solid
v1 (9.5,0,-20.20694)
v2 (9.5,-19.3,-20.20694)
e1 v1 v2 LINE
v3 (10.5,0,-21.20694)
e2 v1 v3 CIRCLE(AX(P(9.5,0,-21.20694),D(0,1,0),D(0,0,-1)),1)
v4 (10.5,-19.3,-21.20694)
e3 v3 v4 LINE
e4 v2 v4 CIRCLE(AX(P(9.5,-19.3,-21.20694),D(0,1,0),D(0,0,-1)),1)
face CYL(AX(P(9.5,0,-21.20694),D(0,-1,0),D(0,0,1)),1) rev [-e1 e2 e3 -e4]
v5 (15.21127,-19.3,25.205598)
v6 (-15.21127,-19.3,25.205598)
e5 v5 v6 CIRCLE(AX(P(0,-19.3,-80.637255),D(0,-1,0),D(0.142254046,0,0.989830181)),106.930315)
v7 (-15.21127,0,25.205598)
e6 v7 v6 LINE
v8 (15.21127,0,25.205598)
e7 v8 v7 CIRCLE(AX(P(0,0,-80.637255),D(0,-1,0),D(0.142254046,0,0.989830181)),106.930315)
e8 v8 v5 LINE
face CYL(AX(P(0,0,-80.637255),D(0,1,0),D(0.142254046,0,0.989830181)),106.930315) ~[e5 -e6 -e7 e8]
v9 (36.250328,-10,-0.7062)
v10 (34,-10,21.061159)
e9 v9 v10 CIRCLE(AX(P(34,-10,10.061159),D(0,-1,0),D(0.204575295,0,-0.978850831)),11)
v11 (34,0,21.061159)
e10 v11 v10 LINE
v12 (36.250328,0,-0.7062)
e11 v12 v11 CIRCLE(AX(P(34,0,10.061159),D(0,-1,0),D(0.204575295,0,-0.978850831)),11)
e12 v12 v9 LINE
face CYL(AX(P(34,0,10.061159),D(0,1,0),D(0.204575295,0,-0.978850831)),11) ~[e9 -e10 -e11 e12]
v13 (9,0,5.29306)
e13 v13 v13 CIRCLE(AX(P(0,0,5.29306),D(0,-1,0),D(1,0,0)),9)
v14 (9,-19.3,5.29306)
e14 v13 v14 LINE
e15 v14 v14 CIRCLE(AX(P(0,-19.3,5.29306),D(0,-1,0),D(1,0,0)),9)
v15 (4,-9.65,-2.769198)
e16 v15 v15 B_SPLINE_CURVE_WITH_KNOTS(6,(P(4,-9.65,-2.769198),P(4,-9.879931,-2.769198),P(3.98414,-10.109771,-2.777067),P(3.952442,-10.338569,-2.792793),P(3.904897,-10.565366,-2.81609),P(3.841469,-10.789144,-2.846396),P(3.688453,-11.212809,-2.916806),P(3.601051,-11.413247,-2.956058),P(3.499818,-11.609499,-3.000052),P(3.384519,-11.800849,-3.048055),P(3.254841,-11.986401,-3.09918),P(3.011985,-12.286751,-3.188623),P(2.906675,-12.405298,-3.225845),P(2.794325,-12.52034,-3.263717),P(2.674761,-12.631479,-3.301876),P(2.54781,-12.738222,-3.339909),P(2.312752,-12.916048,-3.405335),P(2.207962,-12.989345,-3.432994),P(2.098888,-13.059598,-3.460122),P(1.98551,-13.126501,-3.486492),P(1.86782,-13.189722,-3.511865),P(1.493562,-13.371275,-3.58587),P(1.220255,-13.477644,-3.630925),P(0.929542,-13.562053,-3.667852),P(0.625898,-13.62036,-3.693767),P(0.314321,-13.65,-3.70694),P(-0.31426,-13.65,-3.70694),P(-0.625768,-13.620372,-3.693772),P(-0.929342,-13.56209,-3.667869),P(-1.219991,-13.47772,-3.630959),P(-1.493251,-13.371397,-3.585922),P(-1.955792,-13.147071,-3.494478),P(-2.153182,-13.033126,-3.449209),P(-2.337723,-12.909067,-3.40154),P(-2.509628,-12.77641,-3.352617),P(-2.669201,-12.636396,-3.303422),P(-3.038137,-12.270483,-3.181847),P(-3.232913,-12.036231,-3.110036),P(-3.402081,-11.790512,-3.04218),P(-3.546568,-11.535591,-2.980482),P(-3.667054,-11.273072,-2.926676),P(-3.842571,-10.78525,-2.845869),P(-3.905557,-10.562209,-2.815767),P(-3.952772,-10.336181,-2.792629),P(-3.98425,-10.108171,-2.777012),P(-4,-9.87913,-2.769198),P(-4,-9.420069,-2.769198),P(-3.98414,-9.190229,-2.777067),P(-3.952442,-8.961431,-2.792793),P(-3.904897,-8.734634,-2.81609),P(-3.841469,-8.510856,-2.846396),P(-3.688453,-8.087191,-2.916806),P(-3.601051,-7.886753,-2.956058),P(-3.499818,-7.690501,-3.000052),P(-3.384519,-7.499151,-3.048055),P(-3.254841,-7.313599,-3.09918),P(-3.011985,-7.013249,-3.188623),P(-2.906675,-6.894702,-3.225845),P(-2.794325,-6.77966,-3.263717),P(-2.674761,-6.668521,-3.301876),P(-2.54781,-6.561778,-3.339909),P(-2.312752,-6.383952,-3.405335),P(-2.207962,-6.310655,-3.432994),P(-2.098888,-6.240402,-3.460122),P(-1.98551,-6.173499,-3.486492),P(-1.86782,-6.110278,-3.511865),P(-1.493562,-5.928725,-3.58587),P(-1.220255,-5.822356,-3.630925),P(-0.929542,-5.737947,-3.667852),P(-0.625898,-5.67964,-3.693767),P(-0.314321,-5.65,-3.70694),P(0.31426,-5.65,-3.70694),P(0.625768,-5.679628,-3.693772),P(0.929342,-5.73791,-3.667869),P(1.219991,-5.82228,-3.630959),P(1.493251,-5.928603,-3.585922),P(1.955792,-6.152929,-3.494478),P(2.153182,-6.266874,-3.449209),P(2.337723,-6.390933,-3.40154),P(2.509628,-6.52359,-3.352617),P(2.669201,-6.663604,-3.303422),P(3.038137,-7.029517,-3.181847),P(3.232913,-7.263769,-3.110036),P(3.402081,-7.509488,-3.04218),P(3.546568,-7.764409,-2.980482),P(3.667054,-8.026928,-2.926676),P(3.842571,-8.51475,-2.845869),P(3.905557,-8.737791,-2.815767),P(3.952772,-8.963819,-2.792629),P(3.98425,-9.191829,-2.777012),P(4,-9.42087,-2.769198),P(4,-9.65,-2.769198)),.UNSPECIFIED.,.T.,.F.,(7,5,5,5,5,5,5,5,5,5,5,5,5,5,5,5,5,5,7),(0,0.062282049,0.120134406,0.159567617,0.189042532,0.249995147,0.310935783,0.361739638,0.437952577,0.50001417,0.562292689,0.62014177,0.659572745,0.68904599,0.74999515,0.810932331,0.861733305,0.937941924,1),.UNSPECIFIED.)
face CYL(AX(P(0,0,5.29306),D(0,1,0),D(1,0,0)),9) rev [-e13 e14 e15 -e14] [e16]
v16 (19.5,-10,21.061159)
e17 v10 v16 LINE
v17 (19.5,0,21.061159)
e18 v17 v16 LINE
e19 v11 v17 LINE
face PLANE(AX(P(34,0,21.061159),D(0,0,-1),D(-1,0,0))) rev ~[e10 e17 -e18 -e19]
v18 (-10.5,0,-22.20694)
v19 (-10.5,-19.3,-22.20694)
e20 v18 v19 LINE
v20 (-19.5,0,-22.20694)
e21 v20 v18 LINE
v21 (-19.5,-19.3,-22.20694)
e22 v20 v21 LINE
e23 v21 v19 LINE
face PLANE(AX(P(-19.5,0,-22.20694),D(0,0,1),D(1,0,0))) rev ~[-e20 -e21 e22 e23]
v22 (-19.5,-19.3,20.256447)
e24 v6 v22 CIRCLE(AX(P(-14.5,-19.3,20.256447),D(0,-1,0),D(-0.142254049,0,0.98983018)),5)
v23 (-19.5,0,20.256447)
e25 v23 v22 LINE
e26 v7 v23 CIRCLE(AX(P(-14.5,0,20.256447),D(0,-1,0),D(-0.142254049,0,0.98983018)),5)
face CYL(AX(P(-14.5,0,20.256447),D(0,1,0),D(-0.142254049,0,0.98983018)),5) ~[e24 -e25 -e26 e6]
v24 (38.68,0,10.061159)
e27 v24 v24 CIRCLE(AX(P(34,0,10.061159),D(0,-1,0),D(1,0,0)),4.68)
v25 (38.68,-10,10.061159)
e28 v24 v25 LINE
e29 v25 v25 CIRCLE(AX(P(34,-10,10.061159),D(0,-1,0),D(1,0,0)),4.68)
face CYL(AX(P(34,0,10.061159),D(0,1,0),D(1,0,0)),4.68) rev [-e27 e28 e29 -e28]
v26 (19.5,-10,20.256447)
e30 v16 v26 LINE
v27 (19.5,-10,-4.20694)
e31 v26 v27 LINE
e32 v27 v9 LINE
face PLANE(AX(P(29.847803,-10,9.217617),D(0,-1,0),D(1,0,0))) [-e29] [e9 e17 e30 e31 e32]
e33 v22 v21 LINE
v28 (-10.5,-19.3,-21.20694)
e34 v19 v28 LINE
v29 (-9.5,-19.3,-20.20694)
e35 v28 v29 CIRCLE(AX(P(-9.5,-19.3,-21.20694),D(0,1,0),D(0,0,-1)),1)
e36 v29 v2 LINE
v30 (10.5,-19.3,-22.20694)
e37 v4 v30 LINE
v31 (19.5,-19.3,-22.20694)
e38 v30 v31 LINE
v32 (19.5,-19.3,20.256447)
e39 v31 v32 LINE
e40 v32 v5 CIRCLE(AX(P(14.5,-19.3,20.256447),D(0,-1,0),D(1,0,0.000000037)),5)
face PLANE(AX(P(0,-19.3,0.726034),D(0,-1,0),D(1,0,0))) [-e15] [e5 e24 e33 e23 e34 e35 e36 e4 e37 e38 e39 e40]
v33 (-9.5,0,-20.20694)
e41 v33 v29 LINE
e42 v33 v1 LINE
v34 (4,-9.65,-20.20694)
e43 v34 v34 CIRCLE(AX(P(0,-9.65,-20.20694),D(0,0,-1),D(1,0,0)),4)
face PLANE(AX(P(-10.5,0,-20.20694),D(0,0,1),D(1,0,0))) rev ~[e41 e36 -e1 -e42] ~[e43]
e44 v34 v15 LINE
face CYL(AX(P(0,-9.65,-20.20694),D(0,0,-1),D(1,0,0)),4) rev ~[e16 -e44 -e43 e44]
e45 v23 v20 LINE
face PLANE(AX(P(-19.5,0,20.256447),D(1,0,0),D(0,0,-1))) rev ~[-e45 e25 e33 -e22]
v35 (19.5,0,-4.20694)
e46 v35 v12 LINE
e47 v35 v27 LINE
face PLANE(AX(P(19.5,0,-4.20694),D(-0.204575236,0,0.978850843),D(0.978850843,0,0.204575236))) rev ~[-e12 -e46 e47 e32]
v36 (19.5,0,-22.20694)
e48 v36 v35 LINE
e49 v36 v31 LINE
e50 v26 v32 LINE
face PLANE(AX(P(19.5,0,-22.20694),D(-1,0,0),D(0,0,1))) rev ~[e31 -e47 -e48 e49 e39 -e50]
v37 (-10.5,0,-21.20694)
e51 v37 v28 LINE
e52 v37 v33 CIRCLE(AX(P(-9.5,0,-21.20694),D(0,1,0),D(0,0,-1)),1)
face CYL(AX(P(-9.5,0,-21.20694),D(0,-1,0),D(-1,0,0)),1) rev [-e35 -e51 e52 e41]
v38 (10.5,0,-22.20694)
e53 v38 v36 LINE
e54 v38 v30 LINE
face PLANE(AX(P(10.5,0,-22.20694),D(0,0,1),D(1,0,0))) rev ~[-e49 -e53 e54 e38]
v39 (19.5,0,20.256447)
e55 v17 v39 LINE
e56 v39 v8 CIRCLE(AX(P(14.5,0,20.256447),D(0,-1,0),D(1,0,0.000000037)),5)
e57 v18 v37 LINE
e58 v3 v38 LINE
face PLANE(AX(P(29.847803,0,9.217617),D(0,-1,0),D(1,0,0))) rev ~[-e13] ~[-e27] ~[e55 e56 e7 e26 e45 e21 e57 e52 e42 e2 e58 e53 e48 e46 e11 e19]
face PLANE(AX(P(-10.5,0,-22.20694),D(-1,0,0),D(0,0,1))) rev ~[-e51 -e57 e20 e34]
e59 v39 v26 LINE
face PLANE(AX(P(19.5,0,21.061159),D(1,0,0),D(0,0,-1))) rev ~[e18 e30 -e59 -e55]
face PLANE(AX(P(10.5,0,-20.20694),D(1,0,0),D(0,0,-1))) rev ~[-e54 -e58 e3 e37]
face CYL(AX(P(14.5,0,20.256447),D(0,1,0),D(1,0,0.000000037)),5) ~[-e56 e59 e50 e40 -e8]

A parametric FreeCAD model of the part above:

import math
import FreeCAD as App
import Part
import Sketcher
from FreeCAD import Vector
Q = App.Units.Quantity


def edges_at(feature, points):
    """Names of the edges that pass closest to the given points."""
    edges = feature.Shape.Edges
    near = lambda p: min(range(len(edges)), key=lambda i: edges[i].distToShape(Part.Vertex(*p))[0])
    return sorted({f"Edge{near(p) + 1}" for p in points})

doc = App.newDocument("Part")
body = doc.addObject("PartDesign::Body", "Body")

# Sketch on XZ plane
sketch1 = body.newObject("Sketcher::SketchObject", "Sketch")
sketch1.AttachmentSupport = (doc.getObject("XZ_Plane"), [""])
sketch1.MapMode = "FlatFace"
sketch1.addGeometry(Part.ArcOfCircle(Part.Circle(Vector(-14.5, 20.3, 0), Vector(0, 0, 1), 5), math.radians(98), math.radians(180)), False)
sketch1.addGeometry(Part.LineSegment(Vector(-19.5, 20.3, 0), Vector(-19.5, -22.2, 0)), False)
sketch1.addGeometry(Part.LineSegment(Vector(-19.5, -22.2, 0), Vector(-10.5, -22.2, 0)), False)
sketch1.addGeometry(Part.LineSegment(Vector(-10.5, -22.2, 0), Vector(-10.5, -20.2, 0)), False)
sketch1.addGeometry(Part.LineSegment(Vector(-10.5, -20.2, 0), Vector(10.5, -20.2, 0)), False)
sketch1.addGeometry(Part.LineSegment(Vector(10.5, -20.2, 0), Vector(10.5, -22.2, 0)), False)
sketch1.addGeometry(Part.LineSegment(Vector(10.5, -22.2, 0), Vector(19.5, -22.2, 0)), False)
sketch1.addGeometry(Part.LineSegment(Vector(19.5, -22.2, 0), Vector(19.5, 20.3, 0)), False)
sketch1.addGeometry(Part.ArcOfCircle(Part.Circle(Vector(14.5, 20.3, 0), Vector(0, 0, 1), 5), math.radians(0), math.radians(82)), False)
sketch1.addGeometry(Part.ArcOfCircle(Part.Circle(Vector(0, -80.6, 0), Vector(0, 0, 1), 106.9), math.radians(81.82), math.radians(98.18)), False)
sketch1.addGeometry(Part.Circle(Vector(0, 5.3, 0), Vector(0, 0, 1), 9), False)
sketch1.addConstraint(Sketcher.Constraint("Tangent", 0, 2, 1, 1))
sketch1.addConstraint(Sketcher.Constraint("Coincident", 1, 2, 2, 1))
sketch1.addConstraint(Sketcher.Constraint("Coincident", 2, 2, 3, 1))
sketch1.addConstraint(Sketcher.Constraint("Coincident", 3, 2, 4, 1))
sketch1.addConstraint(Sketcher.Constraint("Coincident", 4, 2, 5, 1))
sketch1.addConstraint(Sketcher.Constraint("Coincident", 5, 2, 6, 1))
sketch1.addConstraint(Sketcher.Constraint("Coincident", 6, 2, 7, 1))
sketch1.addConstraint(Sketcher.Constraint("Tangent", 7, 2, 8, 1))
sketch1.addConstraint(Sketcher.Constraint("Tangent", 8, 2, 9, 1))
sketch1.addConstraint(Sketcher.Constraint("Tangent", 9, 2, 0, 1))
sketch1.addConstraint(Sketcher.Constraint("Vertical", 1))
sketch1.addConstraint(Sketcher.Constraint("Horizontal", 2))
sketch1.addConstraint(Sketcher.Constraint("Vertical", 3))
sketch1.addConstraint(Sketcher.Constraint("Horizontal", 4))
sketch1.addConstraint(Sketcher.Constraint("Vertical", 5))
sketch1.addConstraint(Sketcher.Constraint("Horizontal", 6))
sketch1.addConstraint(Sketcher.Constraint("Vertical", 7))
sketch1.addConstraint(Sketcher.Constraint("Equal", 0, 8))
sketch1.addConstraint(Sketcher.Constraint("Symmetric", 0, 3, 8, 3, -2))
sketch1.addConstraint(Sketcher.Constraint("Symmetric", 2, 2, 5, 2, -2))
sketch1.addConstraint(Sketcher.Constraint("PointOnObject", 10, 3, -2))
sketch1.addConstraint(Sketcher.Constraint("Diameter", 10, Q("18 mm")))
sketch1.addConstraint(Sketcher.Constraint("Radius", 0, Q("5 mm")))
sketch1.addConstraint(Sketcher.Constraint("DistanceX", 2, 1, 2, 2, Q("9 mm")))
sketch1.addConstraint(Sketcher.Constraint("DistanceX", 4, 1, 4, 2, Q("21 mm")))
sketch1.addConstraint(Sketcher.Constraint("DistanceY", 3, 1, 3, 2, Q("2 mm")))
sketch1.addConstraint(Sketcher.Constraint("DistanceY", 1, 2, 10, 3, Q("27.5 mm")))
sketch1.addConstraint(Sketcher.Constraint("Radius", 9, Q("106.930315 mm")))
sketch1.addConstraint(Sketcher.Constraint("DistanceY", -1, 1, 9, 2, Q("25.205598 mm")))
sketch1.addConstraint(Sketcher.Constraint("DistanceY", 1, 2, 1, 1, Q("42.463387 mm")))
pad1 = body.newObject("PartDesign::Pad", "Pad")
pad1.Profile = sketch1
pad1.Length = 19.3
doc.recompute()

fillet = body.newObject("PartDesign::Fillet", "Fillet")
fillet.Base = (pad1, edges_at(pad1, [(-10.5, -9.65, -20.207), (10.5, -9.65, -20.207)]))
fillet.Radius = 1

# Sketch on XZ plane
sketch2 = body.newObject("Sketcher::SketchObject", "Sketch001")
sketch2.AttachmentSupport = (doc.getObject("XZ_Plane"), [""])
sketch2.MapMode = "FlatFace"
sketch2.addGeometry(Part.LineSegment(Vector(34, 21.1, 0), Vector(19.5, 21.1, 0)), False)
sketch2.addGeometry(Part.LineSegment(Vector(19.5, 21.1, 0), Vector(19.5, -4.2, 0)), False)
sketch2.addGeometry(Part.LineSegment(Vector(19.5, -4.2, 0), Vector(36.3, -0.7, 0)), False)
sketch2.addGeometry(Part.ArcOfCircle(Part.Circle(Vector(34, 10.1, 0), Vector(0, 0, 1), 11), math.radians(-78), math.radians(90)), False)
sketch2.addGeometry(Part.Circle(Vector(34, 10.1, 0), Vector(0, 0, 1), 4.7), False)
sketch2.addConstraint(Sketcher.Constraint("Coincident", 0, 2, 1, 1))
sketch2.addConstraint(Sketcher.Constraint("Coincident", 1, 2, 2, 1))
sketch2.addConstraint(Sketcher.Constraint("Tangent", 2, 2, 3, 1))
sketch2.addConstraint(Sketcher.Constraint("Tangent", 3, 2, 0, 1))
sketch2.addConstraint(Sketcher.Constraint("Horizontal", 0))
sketch2.addConstraint(Sketcher.Constraint("Vertical", 1))
sketch2.addConstraint(Sketcher.Constraint("Coincident", 4, 3, 3, 3))
sketch2.addConstraint(Sketcher.Constraint("Radius", 3, Q("11 mm")))
sketch2.addConstraint(Sketcher.Constraint("Diameter", 4, Q("9.36 mm")))
sketch2.addConstraint(Sketcher.Constraint("DistanceX", 0, 2, 0, 1, Q("14.5 mm")))
sketch2.addConstraint(Sketcher.Constraint("DistanceX", -1, 1, 3, 3, Q("34 mm")))
sketch2.addConstraint(Sketcher.Constraint("DistanceY", 1, 2, 1, 1, Q("25.268099 mm")))
sketch2.addConstraint(Sketcher.Constraint("DistanceY", 2, 2, -1, 1, Q("0.7062 mm")))
pad2 = body.newObject("PartDesign::Pad", "Pad001")
pad2.Profile = sketch2
pad2.Length = 10

# Sketch on XY plane
sketch3 = body.newObject("Sketcher::SketchObject", "Sketch002")
sketch3.AttachmentSupport = (doc.getObject("XY_Plane"), [""])
sketch3.MapMode = "FlatFace"
sketch3.AttachmentOffset = App.Placement(Vector(0, 0, -20.20694), App.Rotation())
sketch3.addGeometry(Part.Circle(Vector(0, -9.7, 0), Vector(0, 0, 1), 4), False)
sketch3.addConstraint(Sketcher.Constraint("PointOnObject", 0, 3, -2))
sketch3.addConstraint(Sketcher.Constraint("Diameter", 0, Q("8 mm")))
sketch3.addConstraint(Sketcher.Constraint("DistanceY", 0, 3, -1, 1, Q("9.65 mm")))
pocket1 = body.newObject("PartDesign::Pocket", "Pocket")
pocket1.Profile = sketch3
pocket1.Length = 25
pocket1.Reversed = True

doc.recompute()
